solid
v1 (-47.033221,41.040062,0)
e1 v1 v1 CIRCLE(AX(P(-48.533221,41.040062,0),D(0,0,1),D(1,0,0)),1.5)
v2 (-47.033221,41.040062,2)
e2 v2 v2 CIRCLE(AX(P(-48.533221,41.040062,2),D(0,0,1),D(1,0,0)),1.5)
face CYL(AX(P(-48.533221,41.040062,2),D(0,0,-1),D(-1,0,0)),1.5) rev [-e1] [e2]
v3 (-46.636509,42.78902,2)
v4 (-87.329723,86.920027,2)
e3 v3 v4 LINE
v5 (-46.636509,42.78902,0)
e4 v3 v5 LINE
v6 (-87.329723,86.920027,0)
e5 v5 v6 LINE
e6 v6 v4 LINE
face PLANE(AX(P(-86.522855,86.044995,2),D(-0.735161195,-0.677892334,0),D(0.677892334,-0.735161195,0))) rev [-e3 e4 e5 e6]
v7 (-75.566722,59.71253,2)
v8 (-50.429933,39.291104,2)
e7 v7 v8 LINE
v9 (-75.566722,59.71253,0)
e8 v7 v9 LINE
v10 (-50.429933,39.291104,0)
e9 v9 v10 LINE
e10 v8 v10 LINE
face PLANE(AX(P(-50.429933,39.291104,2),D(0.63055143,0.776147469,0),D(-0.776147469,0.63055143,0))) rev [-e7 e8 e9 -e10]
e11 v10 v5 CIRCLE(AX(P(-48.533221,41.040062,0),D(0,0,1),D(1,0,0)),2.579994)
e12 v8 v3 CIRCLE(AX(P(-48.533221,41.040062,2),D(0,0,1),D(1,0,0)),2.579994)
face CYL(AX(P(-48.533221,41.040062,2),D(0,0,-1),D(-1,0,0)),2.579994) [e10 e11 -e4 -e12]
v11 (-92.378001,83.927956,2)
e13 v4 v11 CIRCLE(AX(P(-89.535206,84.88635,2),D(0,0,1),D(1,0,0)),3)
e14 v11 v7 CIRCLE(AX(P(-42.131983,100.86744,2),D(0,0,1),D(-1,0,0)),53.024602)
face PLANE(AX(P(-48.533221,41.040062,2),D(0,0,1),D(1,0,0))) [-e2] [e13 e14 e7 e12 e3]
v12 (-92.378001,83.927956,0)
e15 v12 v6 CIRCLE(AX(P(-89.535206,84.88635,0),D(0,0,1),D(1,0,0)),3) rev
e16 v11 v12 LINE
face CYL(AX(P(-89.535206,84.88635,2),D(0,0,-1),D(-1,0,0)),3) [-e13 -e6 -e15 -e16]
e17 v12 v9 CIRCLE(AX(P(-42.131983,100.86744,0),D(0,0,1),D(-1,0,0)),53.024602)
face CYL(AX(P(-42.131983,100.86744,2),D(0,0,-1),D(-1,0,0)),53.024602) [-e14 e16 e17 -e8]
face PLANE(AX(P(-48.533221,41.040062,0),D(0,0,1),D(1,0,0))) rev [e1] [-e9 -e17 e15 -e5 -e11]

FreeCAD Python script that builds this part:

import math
import FreeCAD as App
import Part
import Sketcher

V = App.Vector
Q = App.Units.Quantity


def edges_at(feature, points):
    """Names of the edges that pass closest to the given points."""
    edges = feature.Shape.Edges
    near = lambda p: min(range(len(edges)), key=lambda i: edges[i].distToShape(Part.Vertex(*p))[0])
    return sorted({f"Edge{near(p) + 1}" for p in points})

doc = App.newDocument("Part")
body = doc.addObject("PartDesign::Body", "Body")

# Sketch on XY plane
sketch1 = body.newObject("Sketcher::SketchObject", "Sketch")
sketch1.AttachmentSupport = (doc.getObject("XY_Plane"), [""])
sketch1.MapMode = "FlatFace"
sketch1.addGeometry([
    Part.LineSegment(V(-46.6, 42.8, 0), V(-50.1, 46.5, 0)),  # 0
    Part.LineSegment(V(-50.1, 46.5, 0), V(-86.5, 86, 0)),  # 1
    Part.LineSegment(V(-86.5, 86, 0), V(-94.8, 95.1, 0)),  # 2
    Part.ArcOfCircle(Part.Circle(V(-42.1, 100.9, 0), V(0, 0, 1), 53), math.radians(-174), math.radians(-129)),  # 3
    Part.LineSegment(V(-75.6, 59.7, 0), V(-50.4, 39.3, 0)),  # 4
    Part.ArcOfCircle(Part.Circle(V(-48.5, 41, 0), V(0, 0, 1), 2.6), math.radians(-137), math.radians(43)),  # 5
    Part.Circle(V(-48.5, 41, 0), V(0, 0, 1), 1.5),  # 6
], False)
sketch1.addConstraint([
    Sketcher.Constraint("Coincident", 0, 2, 1, 1),
    Sketcher.Constraint("Coincident", 1, 2, 2, 1),
    Sketcher.Constraint("Coincident", 2, 2, 3, 1),
    Sketcher.Constraint("Tangent", 3, 2, 4, 1),
    Sketcher.Constraint("Coincident", 4, 2, 5, 1),
    Sketcher.Constraint("Tangent", 5, 2, 0, 1),
    Sketcher.Constraint("Coincident", 6, 3, 5, 3),
    Sketcher.Constraint("Parallel", 0, 1),
    Sketcher.Constraint("Parallel", 1, 2),
    Sketcher.Constraint("Diameter", 6, Q("3 mm")),
    Sketcher.Constraint("Radius", 3, Q("53.024602 mm")),
    Sketcher.Constraint("Radius", 5, Q("2.579994 mm")),
    Sketcher.Constraint("DistanceX", 2, 2, 0, 2, Q("44.776899 mm")),
    Sketcher.Constraint("DistanceX", 3, 2, 6, 3, Q("27.033501 mm")),
    Sketcher.Constraint("Distance", 1, Q("53.787128 mm")),
    Sketcher.Constraint("DistanceY", -1, 1, 3, 3, Q("100.86744 mm")),
    Sketcher.Constraint("DistanceX", 5, 3, -1, 1, Q("48.533221 mm")),
    Sketcher.Constraint("DistanceY", -1, 1, 5, 3, Q("41.040062 mm")),
    Sketcher.Constraint("DistanceY", -1, 1, 2, 2, Q("95.062471 mm")),
    Sketcher.Constraint("DistanceY", -1, 1, 3, 2, Q("59.71253 mm")),
])
pad1 = body.newObject("PartDesign::Pad", "Pad")
pad1.Profile = sketch1
pad1.Length = 2
doc.recompute()

fillet = body.newObject("PartDesign::Fillet", "Fillet")
fillet.Base = (pad1, edges_at(pad1, [(-94.838, 95.062, 1)]))
fillet.Radius = 3

doc.recompute()
